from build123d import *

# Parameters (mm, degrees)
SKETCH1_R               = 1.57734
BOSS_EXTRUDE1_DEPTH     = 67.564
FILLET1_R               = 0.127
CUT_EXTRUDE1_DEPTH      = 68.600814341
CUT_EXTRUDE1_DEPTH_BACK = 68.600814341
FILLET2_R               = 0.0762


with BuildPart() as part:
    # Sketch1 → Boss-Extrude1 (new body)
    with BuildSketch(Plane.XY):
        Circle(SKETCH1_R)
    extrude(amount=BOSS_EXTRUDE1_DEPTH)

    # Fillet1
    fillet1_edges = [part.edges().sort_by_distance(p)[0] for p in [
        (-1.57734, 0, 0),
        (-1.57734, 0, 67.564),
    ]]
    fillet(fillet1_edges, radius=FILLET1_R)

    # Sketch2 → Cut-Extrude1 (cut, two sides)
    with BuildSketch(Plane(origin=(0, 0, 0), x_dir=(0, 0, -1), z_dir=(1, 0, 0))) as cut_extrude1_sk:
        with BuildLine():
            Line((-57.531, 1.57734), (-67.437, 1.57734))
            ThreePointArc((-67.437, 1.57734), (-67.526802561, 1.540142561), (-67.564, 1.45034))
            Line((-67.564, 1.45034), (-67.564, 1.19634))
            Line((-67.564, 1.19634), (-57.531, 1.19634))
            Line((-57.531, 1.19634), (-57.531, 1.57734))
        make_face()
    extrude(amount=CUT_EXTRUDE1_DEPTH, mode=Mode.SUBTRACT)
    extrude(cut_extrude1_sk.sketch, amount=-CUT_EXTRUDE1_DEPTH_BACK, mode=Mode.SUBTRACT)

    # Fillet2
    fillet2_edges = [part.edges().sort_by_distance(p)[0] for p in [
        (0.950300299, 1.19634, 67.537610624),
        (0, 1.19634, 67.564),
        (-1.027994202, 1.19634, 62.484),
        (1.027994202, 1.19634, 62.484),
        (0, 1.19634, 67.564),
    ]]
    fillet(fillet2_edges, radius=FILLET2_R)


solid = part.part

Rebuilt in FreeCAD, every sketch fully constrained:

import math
import FreeCAD as App
import Part
import Sketcher
from FreeCAD import Vector
Q = App.Units.Quantity


def edges_at(feature, points):
    """Names of the edges that pass closest to the given points."""
    edges = feature.Shape.Edges
    near = lambda p: min(range(len(edges)), key=lambda i: edges[i].distToShape(Part.Vertex(*p))[0])
    return sorted({f"Edge{near(p) + 1}" for p in points})

doc = App.newDocument("Part")
body = doc.addObject("PartDesign::Body", "Body")

# Sketch on XY plane
sketch1 = body.newObject("Sketcher::SketchObject", "Sketch")
sketch1.AttachmentSupport = (doc.getObject("XY_Plane"), [""])
sketch1.MapMode = "FlatFace"
sketch1.addGeometry(Part.Circle(Vector(0, 0, 0), Vector(0, 0, 1), 1.57734), False)
sketch1.addConstraint([
    Sketcher.Constraint("Coincident", 0, 3, -1, 1),
    Sketcher.Constraint("Diameter", 0, Q("0.1242 in")),
])
pad1 = body.newObject("PartDesign::Pad", "Pad")
pad1.Profile = sketch1
pad1.Length = Q("2.66 in")
doc.recompute()

fillet = body.newObject("PartDesign::Fillet", "Fillet")
fillet.Base = (pad1, edges_at(pad1, [(-1.577, 0, 0), (-1.577, 0, 67.564)]))
fillet.Radius = Q("0.005 in")

# Sketch on YZ plane
sketch2 = body.newObject("Sketcher::SketchObject", "Sketch001")
sketch2.AttachmentSupport = (doc.getObject("YZ_Plane"), [""])
sketch2.MapMode = "FlatFace"
sketch2.addGeometry([
    Part.LineSegment(Vector(1.57734, 57.531, 0), Vector(1.57734, 67.437, 0)),  # 0
    Part.ArcOfCircle(Part.Circle(Vector(1.45034, 67.437, 0), Vector(0, 0, 1), 0.127), math.radians(0), math.radians(90)),  # 1
    Part.LineSegment(Vector(1.45034, 67.564, 0), Vector(1.19634, 67.564, 0)),  # 2
    Part.LineSegment(Vector(1.19634, 67.564, 0), Vector(1.19634, 57.531, 0)),  # 3
    Part.LineSegment(Vector(1.19634, 57.531, 0), Vector(1.57734, 57.531, 0)),  # 4
], False)
sketch2.addConstraint([
    Sketcher.Constraint("Tangent", 0, 2, 1, 1),
    Sketcher.Constraint("Tangent", 1, 2, 2, 1),
    Sketcher.Constraint("Coincident", 2, 2, 3, 1),
    Sketcher.Constraint("Coincident", 3, 2, 4, 1),
    Sketcher.Constraint("Coincident", 4, 2, 0, 1),
    Sketcher.Constraint("Vertical", 0),
    Sketcher.Constraint("Horizontal", 2),
    Sketcher.Constraint("Vertical", 3),
    Sketcher.Constraint("Horizontal", 4),
    Sketcher.Constraint("Radius", 1, Q("0.005 in")),
    Sketcher.Constraint("DistanceX", 2, 2, 2, 1, Q("0.01 in")),
    Sketcher.Constraint("DistanceY", 0, 1, 0, 2, Q("0.39 in")),
    Sketcher.Constraint("DistanceY", -1, 1, 1, 2, Q("2.66 in")),
    Sketcher.Constraint("DistanceX", -1, 1, 1, 3, Q("0.0571 in")),
])
pocket1 = body.newObject("PartDesign::Pocket", "Pocket")
pocket1.Profile = sketch2
pocket1.Type = "ThroughAll"
pocket1.Midplane = True
doc.recompute()

fillet2 = body.newObject("PartDesign::Fillet", "Fillet001")
fillet2.Base = (pocket1, edges_at(pocket1, [
    (0.95, 1.196, 67.538),
    (0, 1.196, 67.564),
    (-1.028, 1.196, 62.484),
    (1.028, 1.196, 62.484),
    (0, 1.196, 67.564),
]))
fillet2.Radius = Q("0.003 in")

doc.recompute()
